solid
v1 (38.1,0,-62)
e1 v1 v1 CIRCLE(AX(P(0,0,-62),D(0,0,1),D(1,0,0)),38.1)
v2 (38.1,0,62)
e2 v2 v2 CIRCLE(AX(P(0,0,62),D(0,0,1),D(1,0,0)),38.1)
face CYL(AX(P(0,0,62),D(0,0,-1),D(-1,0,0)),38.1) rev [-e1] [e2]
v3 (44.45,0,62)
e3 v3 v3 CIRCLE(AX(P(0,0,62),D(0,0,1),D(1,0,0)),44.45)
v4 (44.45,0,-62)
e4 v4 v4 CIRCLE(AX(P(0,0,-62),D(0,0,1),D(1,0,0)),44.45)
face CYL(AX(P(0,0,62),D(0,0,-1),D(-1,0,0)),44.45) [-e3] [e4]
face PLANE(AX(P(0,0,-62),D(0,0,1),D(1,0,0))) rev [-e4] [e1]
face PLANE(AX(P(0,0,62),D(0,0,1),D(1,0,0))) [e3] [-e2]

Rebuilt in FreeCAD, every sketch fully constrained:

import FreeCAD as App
import Part
import Sketcher
Q = App.Units.Quantity

doc = App.newDocument("Part")
body = doc.addObject("PartDesign::Body", "Body")

# Sketch on XY plane
sketch1 = body.newObject("Sketcher::SketchObject", "Sketch")
sketch1.AttachmentSupport = (doc.getObject("XY_Plane"), [""])
sketch1.MapMode = "FlatFace"
sketch1.addGeometry([
    Part.Circle(App.Vector(0, 0, 0), App.Vector(0, 0, 1), 44),
    Part.Circle(App.Vector(0, 0, 0), App.Vector(0, 0, 1), 38),
], False)
sketch1.addConstraint([
    Sketcher.Constraint("Coincident", 0, 3, -1, 1),
    Sketcher.Constraint("Coincident", 1, 3, -1, 1),
    Sketcher.Constraint("Diameter", 1, Q("3 in")),
    Sketcher.Constraint("Diameter", 0, Q("3.5 in")),
])
pad1 = body.newObject("PartDesign::Pad", "Pad")
pad1.Profile = sketch1
pad1.Length = 124
pad1.Midplane = True

doc.recompute()
